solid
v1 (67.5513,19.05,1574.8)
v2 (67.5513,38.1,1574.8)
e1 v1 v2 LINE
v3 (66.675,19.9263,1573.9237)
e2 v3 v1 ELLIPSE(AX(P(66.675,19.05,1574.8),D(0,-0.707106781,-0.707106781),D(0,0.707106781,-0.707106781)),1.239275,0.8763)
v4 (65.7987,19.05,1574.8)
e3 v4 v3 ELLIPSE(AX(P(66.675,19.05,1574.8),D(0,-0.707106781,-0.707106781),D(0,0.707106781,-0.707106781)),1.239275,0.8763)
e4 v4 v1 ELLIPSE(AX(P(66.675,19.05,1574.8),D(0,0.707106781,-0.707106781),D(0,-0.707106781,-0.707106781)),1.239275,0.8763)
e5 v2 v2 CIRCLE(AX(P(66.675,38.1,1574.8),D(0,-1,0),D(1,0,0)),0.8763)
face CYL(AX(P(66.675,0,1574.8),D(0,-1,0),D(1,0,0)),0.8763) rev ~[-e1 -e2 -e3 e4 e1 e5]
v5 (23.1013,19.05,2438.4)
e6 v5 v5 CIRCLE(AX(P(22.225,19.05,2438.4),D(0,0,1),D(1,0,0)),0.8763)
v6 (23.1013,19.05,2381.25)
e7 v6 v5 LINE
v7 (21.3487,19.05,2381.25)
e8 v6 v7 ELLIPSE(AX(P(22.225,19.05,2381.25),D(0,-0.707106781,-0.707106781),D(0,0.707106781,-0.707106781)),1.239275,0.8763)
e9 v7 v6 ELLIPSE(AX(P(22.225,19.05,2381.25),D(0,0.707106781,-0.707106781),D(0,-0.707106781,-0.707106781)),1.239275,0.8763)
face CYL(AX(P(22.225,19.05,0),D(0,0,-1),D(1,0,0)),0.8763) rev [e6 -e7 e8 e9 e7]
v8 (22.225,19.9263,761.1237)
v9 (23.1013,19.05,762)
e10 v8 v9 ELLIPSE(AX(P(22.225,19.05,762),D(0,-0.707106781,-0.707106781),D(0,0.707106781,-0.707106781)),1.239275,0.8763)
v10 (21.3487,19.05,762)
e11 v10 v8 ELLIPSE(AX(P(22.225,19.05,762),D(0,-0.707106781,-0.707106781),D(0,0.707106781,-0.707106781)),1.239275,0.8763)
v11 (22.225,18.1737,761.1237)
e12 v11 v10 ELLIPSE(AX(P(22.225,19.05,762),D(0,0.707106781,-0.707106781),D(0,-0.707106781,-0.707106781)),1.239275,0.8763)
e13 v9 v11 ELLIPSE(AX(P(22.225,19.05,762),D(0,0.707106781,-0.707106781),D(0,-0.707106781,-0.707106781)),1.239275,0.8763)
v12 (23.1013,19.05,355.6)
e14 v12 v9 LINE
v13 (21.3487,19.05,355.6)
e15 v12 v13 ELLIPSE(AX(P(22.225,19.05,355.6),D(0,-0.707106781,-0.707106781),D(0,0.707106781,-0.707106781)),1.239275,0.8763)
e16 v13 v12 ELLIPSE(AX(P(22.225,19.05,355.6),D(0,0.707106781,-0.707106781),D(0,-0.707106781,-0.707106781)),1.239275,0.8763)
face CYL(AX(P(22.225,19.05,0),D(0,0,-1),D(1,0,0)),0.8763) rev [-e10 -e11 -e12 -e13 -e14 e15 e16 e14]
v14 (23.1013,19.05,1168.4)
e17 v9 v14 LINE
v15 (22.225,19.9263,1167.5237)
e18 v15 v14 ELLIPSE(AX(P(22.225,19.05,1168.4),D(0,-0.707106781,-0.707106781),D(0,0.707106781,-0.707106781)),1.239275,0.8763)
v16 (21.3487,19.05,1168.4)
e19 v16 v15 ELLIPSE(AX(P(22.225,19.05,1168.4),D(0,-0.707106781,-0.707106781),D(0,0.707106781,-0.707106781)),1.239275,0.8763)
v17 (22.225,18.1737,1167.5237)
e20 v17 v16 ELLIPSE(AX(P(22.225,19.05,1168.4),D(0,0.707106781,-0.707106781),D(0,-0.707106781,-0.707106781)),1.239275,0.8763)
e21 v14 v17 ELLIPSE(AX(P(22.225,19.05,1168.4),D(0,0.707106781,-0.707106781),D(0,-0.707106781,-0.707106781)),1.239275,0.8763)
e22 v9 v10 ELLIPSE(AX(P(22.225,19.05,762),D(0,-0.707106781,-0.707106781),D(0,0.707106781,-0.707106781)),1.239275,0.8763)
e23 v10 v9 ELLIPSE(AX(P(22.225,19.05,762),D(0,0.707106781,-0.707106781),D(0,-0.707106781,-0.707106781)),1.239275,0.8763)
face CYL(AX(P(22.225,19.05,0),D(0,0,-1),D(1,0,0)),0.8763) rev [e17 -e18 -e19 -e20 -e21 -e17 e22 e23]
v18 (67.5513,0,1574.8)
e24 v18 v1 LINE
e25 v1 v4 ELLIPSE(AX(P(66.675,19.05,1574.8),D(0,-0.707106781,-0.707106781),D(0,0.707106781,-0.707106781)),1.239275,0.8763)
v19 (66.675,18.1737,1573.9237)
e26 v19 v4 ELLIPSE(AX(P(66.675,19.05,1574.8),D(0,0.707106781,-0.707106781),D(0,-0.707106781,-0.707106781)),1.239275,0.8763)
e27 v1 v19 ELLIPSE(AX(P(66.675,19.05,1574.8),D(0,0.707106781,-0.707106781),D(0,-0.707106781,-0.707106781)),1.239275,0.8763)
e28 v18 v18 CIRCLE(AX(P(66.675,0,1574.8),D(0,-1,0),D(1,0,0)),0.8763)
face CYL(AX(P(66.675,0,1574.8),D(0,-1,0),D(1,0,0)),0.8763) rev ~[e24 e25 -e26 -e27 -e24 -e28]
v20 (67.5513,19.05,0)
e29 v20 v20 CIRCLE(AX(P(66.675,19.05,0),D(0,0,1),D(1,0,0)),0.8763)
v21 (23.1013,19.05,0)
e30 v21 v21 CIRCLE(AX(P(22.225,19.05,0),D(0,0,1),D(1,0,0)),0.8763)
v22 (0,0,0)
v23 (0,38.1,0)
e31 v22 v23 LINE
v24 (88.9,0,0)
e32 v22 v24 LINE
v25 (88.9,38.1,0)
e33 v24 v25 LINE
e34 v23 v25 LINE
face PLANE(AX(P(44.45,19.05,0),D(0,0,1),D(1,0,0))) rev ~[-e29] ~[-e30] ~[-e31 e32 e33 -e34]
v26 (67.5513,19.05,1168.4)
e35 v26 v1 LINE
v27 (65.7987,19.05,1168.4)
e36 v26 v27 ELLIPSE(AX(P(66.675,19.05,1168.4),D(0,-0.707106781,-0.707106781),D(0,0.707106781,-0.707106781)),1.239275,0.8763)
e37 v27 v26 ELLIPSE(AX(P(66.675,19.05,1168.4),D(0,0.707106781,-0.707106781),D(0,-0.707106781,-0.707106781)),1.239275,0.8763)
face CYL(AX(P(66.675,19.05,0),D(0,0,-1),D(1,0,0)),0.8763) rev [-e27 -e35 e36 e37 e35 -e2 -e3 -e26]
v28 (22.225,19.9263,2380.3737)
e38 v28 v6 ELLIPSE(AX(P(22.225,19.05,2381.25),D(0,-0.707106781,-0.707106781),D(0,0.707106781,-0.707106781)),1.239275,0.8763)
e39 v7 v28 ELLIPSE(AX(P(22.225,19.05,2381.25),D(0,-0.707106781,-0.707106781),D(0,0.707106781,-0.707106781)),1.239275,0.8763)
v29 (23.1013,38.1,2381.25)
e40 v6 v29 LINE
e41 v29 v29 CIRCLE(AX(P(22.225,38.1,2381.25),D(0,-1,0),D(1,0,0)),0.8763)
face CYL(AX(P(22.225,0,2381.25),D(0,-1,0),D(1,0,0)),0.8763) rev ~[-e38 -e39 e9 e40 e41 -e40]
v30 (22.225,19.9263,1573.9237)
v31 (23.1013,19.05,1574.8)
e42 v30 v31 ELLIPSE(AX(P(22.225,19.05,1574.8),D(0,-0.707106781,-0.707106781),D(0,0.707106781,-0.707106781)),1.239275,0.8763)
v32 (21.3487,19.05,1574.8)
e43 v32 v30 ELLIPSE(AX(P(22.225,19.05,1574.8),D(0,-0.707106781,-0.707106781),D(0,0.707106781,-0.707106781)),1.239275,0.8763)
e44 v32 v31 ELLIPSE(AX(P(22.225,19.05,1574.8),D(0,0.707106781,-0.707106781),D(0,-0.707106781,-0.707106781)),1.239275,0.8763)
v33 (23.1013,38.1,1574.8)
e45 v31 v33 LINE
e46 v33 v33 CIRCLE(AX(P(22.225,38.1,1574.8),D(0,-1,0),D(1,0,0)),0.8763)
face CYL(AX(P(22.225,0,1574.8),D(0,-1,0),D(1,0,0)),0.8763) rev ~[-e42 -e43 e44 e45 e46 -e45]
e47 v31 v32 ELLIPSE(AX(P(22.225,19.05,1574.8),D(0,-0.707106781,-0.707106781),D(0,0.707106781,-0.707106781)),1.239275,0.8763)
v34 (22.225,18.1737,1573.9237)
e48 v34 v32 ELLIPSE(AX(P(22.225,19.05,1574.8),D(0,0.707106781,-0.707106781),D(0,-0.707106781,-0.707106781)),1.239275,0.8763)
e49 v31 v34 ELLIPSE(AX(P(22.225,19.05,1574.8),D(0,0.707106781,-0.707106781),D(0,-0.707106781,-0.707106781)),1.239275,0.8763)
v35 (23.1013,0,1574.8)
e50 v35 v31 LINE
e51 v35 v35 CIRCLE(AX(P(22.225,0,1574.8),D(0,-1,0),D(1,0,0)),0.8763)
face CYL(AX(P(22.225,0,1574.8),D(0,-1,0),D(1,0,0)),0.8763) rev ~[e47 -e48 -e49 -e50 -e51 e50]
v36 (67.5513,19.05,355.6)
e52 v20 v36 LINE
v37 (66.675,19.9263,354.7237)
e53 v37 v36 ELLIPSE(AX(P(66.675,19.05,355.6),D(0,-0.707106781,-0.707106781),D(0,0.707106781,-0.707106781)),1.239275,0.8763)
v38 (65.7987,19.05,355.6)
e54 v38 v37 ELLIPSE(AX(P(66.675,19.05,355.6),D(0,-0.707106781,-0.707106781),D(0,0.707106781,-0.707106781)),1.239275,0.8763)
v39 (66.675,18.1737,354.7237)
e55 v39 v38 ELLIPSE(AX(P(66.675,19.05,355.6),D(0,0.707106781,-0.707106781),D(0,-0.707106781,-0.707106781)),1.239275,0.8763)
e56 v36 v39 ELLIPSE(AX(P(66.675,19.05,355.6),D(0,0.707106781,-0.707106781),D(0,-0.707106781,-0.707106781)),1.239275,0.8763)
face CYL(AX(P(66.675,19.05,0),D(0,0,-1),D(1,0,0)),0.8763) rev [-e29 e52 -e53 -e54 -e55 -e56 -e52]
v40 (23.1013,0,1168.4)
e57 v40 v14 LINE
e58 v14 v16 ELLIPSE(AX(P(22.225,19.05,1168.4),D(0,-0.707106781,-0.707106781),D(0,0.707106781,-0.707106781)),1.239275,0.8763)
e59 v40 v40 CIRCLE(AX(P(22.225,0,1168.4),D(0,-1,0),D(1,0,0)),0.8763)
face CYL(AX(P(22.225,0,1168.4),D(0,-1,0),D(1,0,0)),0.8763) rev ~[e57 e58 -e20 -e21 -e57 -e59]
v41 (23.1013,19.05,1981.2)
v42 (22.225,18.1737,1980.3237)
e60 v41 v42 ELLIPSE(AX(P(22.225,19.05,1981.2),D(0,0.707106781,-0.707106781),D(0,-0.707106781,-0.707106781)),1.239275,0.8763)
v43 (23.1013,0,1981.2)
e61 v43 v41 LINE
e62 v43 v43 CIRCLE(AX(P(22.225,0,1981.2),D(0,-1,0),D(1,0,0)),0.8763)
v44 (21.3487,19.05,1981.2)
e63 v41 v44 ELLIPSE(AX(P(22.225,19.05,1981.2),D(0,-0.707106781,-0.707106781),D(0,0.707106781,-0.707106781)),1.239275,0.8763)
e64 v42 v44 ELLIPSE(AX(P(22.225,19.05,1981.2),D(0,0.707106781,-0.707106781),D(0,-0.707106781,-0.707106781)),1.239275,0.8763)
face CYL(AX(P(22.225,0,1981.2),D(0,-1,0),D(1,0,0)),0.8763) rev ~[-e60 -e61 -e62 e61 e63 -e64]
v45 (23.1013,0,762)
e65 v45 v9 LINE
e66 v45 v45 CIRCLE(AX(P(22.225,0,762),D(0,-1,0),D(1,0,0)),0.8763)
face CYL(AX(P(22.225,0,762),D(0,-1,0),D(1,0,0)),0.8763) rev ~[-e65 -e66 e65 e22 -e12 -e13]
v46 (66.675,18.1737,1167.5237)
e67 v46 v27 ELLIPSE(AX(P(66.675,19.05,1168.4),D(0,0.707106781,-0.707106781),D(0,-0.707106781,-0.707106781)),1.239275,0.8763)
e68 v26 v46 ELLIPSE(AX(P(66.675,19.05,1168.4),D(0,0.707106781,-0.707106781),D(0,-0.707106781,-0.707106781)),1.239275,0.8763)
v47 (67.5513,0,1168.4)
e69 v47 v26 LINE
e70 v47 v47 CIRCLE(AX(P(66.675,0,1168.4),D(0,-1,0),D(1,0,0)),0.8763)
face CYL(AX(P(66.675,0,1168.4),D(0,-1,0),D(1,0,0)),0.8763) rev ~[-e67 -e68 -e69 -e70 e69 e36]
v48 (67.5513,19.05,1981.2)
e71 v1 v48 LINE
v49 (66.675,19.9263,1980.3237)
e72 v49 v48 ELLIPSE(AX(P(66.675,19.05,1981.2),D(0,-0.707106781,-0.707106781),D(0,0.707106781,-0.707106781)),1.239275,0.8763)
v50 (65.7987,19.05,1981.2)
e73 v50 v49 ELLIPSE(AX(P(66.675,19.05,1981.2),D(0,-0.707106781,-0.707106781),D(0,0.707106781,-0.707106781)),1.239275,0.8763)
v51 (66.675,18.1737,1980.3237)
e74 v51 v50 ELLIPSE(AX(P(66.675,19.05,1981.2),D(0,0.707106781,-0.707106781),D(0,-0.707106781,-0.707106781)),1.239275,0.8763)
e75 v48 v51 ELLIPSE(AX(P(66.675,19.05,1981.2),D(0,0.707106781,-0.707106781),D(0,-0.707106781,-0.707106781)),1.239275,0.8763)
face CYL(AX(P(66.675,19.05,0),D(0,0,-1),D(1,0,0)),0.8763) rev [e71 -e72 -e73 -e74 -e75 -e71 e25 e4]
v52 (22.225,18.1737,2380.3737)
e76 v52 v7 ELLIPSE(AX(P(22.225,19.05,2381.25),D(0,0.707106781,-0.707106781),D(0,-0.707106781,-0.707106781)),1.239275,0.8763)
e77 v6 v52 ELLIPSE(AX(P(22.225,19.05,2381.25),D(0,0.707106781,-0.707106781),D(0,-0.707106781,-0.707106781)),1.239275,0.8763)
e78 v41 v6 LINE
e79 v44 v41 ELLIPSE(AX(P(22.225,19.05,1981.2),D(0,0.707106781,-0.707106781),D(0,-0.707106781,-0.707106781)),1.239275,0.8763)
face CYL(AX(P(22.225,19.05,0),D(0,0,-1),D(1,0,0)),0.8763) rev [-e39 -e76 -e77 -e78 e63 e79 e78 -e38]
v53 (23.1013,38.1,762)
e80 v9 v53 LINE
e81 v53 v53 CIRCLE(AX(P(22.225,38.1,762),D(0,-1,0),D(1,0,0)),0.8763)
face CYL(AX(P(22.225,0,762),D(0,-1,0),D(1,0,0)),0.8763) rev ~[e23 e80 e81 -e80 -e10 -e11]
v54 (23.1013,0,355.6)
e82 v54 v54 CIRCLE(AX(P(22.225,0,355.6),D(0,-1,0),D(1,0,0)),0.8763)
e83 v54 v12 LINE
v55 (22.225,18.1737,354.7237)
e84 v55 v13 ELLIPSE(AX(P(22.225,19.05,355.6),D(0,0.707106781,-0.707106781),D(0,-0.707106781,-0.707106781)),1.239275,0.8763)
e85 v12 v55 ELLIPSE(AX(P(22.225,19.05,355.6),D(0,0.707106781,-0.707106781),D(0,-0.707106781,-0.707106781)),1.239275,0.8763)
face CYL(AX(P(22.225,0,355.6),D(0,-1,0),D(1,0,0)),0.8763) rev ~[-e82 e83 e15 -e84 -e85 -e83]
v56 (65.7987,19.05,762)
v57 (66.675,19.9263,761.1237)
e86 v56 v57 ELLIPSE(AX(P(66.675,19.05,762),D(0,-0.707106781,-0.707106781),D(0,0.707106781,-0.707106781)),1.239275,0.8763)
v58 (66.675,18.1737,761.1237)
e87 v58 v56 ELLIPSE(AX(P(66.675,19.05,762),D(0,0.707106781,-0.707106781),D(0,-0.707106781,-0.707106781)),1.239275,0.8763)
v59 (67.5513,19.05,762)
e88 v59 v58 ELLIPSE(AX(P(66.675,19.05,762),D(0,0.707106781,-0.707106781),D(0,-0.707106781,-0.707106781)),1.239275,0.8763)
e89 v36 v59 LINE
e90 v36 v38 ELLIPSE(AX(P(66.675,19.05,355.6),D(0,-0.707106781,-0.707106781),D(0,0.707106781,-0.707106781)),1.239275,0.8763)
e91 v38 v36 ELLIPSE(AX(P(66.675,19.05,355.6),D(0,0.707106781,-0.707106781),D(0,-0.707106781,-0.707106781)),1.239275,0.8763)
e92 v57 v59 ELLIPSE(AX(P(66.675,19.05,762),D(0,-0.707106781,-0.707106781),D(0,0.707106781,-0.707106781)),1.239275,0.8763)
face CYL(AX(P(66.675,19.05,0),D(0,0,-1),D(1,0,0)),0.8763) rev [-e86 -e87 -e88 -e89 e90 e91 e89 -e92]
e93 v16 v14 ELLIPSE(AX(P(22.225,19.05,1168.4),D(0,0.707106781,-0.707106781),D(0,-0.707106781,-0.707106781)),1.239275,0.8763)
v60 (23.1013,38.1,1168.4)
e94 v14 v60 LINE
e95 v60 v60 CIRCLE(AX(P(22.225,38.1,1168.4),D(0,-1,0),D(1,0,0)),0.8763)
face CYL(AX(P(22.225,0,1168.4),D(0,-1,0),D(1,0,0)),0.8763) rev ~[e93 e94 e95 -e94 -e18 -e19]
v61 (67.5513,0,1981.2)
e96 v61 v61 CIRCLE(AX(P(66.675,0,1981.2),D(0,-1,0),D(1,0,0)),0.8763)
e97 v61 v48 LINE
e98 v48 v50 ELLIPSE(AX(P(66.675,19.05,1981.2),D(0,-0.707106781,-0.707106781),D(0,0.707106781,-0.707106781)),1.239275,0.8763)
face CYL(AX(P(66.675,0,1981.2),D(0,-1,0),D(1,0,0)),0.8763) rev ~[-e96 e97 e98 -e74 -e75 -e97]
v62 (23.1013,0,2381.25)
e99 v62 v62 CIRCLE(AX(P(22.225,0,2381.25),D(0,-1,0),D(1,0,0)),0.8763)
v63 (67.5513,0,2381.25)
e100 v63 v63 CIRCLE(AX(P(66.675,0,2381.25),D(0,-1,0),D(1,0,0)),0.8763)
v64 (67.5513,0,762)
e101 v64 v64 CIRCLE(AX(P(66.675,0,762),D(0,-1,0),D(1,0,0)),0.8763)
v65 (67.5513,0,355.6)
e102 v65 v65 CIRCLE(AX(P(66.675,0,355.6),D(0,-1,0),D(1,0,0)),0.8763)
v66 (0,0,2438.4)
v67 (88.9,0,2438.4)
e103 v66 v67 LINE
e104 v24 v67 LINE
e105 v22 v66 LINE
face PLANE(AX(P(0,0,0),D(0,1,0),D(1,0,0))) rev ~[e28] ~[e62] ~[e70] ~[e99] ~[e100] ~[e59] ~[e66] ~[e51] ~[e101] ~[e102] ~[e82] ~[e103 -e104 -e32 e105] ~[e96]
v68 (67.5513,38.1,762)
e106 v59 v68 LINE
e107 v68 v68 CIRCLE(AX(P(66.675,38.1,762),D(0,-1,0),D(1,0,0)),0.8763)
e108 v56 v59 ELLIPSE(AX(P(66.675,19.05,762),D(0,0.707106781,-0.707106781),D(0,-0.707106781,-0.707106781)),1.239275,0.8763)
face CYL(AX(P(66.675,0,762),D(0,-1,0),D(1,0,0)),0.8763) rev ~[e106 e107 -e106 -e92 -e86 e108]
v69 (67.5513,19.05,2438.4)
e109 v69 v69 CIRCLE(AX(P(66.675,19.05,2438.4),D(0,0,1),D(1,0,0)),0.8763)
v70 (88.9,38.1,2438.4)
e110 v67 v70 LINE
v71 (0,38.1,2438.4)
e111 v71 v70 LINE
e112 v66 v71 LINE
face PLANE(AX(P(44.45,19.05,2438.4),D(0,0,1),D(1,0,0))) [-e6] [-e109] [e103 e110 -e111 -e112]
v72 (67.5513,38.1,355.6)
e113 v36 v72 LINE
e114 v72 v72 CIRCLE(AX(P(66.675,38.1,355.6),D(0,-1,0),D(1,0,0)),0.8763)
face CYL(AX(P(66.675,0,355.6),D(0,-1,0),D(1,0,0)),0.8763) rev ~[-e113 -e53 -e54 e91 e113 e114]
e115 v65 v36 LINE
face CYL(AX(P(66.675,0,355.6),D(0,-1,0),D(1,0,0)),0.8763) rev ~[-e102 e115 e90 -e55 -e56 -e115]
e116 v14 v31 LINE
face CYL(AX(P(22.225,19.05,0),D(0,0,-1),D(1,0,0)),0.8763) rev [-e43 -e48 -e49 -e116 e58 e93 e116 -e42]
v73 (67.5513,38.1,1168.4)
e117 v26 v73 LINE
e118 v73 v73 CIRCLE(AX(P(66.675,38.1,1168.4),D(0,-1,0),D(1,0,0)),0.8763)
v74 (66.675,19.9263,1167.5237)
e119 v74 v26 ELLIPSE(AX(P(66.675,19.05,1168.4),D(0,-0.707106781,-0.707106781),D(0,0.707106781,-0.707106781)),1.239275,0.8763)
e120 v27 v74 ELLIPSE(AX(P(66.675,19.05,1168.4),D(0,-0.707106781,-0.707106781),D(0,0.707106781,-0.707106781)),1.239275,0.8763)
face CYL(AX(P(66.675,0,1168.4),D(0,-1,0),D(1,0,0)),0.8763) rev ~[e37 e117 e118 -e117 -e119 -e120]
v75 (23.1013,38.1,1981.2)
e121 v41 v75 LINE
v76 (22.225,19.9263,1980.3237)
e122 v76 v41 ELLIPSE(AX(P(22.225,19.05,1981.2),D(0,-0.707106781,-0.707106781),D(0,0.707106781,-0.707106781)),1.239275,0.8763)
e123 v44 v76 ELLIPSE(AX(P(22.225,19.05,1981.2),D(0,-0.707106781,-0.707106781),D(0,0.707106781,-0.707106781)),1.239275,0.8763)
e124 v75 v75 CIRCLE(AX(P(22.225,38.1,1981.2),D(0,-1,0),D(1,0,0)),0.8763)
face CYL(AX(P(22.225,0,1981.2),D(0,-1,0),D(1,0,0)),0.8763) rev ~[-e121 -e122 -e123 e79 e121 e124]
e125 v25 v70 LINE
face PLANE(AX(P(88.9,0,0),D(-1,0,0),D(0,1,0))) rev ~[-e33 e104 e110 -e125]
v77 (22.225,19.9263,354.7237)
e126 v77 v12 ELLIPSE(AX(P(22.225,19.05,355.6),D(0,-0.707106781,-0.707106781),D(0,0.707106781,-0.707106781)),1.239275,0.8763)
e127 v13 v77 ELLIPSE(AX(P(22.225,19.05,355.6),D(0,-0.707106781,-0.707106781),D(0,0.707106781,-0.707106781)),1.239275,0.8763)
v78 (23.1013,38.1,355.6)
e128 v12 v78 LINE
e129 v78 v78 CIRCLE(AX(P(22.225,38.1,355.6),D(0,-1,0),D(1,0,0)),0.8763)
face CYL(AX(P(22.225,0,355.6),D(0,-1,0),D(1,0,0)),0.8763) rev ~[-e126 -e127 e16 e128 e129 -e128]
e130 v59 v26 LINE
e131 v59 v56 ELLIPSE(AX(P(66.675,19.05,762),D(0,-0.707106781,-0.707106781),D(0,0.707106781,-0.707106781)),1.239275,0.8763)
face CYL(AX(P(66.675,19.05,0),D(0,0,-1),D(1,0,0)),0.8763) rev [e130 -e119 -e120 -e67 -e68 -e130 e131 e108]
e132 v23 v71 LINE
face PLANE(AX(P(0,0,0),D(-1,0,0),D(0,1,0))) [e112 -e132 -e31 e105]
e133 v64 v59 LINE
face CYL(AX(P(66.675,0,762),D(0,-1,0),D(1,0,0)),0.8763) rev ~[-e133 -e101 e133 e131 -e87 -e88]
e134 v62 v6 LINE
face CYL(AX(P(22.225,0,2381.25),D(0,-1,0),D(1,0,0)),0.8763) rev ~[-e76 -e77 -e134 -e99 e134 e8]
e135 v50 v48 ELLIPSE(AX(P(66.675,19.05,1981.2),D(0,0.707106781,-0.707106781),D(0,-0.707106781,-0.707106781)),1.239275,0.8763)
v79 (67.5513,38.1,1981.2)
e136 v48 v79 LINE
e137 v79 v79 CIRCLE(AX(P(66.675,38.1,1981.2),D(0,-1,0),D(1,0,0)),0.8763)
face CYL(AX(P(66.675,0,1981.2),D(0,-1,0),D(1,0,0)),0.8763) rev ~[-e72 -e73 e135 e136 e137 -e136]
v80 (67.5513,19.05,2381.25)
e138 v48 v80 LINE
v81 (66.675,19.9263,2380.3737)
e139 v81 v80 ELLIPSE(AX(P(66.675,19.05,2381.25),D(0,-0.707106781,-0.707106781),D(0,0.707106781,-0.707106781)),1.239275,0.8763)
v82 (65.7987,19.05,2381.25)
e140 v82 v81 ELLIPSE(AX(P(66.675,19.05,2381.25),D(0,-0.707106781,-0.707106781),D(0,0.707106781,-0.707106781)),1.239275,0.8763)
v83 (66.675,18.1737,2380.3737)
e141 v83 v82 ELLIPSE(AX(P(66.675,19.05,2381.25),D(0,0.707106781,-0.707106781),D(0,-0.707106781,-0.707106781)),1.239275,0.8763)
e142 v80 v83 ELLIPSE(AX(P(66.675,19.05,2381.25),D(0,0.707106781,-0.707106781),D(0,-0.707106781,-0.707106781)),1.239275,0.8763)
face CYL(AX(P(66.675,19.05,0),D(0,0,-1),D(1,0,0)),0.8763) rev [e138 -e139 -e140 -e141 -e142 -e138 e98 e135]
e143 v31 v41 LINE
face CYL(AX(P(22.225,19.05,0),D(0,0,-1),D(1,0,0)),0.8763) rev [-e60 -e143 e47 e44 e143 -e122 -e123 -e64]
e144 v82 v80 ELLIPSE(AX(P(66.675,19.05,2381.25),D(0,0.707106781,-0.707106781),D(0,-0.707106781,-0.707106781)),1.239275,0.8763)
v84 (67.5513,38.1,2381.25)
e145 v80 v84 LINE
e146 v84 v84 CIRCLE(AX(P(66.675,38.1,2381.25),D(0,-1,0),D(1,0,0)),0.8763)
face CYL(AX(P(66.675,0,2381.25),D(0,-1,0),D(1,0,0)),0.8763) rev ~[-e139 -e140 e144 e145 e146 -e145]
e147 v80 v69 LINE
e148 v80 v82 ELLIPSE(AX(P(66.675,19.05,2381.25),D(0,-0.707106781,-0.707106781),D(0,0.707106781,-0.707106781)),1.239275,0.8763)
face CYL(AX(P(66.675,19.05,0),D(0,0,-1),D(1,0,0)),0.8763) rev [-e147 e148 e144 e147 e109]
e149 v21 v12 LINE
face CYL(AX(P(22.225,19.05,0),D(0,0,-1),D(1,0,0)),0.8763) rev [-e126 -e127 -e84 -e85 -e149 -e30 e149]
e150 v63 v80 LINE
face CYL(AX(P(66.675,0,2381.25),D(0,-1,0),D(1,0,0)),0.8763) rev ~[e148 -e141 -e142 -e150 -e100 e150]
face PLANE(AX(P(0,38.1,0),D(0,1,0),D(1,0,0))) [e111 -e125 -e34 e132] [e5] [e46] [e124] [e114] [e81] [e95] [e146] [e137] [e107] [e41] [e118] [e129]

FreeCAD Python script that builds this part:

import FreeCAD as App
import Part
import Sketcher
Q = App.Units.Quantity


def add_polygon(sketch, points):
    """Adds a closed chain of lines whose ends are joined by coincident constraints."""
    first, n = sketch.GeometryCount, len(points)
    for a, b in zip(points, points[1:] + points[:1]):
        sketch.addGeometry(Part.LineSegment(App.Vector(*a, 0), App.Vector(*b, 0)), False)
    for i in range(n):
        sketch.addConstraint(Sketcher.Constraint("Coincident", first + i, 2, first + (i + 1) % n, 1))

doc = App.newDocument("Part")
body = doc.addObject("PartDesign::Body", "Body")

sketch1 = body.newObject("Sketcher::SketchObject", "Sketch")
sketch1.AttachmentSupport = (doc.getObject("XY_Plane"), [""])
sketch1.MapMode = "FlatFace"
add_polygon(sketch1, [(0, 38.1), (0, 0), (88.9, 0), (88.9, 38.1)])
sketch1.addGeometry(Part.Circle(App.Vector(22.2, 19.1, 0), App.Vector(0, 0, 1), 0.9), False)
sketch1.addGeometry(Part.Circle(App.Vector(66.7, 19.1, 0), App.Vector(0, 0, 1), 0.9), False)
sketch1.addConstraint([
    Sketcher.Constraint("Vertical", 0),
    Sketcher.Constraint("Horizontal", 1),
    Sketcher.Constraint("Vertical", 2),
    Sketcher.Constraint("Horizontal", 3),
    Sketcher.Constraint("Coincident", 0, 2, -1, 1),
    Sketcher.Constraint("Equal", 4, 5),
    Sketcher.Constraint("Horizontal", 4, 3, 5, 3),
    Sketcher.Constraint("Diameter", 4, Q("0.069 in")),
    Sketcher.Constraint("DistanceX", 1, 1, 1, 2, Q("3.5 in")),
    Sketcher.Constraint("DistanceY", 0, 2, 0, 1, Q("1.5 in")),
    Sketcher.Constraint("DistanceY", -1, 1, 4, 3, Q("0.75 in")),
    Sketcher.Constraint("DistanceX", 4, 3, 5, 3, Q("1.75 in")),
    Sketcher.Constraint("DistanceX", -1, 1, 4, 3, Q("0.875 in")),
])
pad1 = body.newObject("PartDesign::Pad", "Pad")
pad1.Profile = sketch1
pad1.Length = Q("96 in")

sketch2 = body.newObject("Sketcher::SketchObject", "Sketch001")
sketch2.AttachmentSupport = (doc.getObject("XZ_Plane"), [""])
sketch2.MapMode = "FlatFace"
sketch2.addGeometry([
    Part.Circle(App.Vector(22.2, 355.6, 0), App.Vector(0, 0, 1), 0.9),
    Part.Circle(App.Vector(66.7, 355.6, 0), App.Vector(0, 0, 1), 0.9),
], False)
sketch2.addConstraint([
    Sketcher.Constraint("Equal", 0, 1),
    Sketcher.Constraint("Horizontal", 0, 3, 1, 3),
    Sketcher.Constraint("Diameter", 0, Q("0.069 in")),
    Sketcher.Constraint("DistanceY", -1, 1, 0, 3, Q("14 in")),
    Sketcher.Constraint("DistanceX", 0, 3, 1, 3, Q("1.75 in")),
    Sketcher.Constraint("DistanceX", -1, 1, 0, 3, Q("0.875 in")),
])
pocket1 = body.newObject("PartDesign::Pocket", "Pocket")
pocket1.Profile = sketch2
pocket1.Length = Q("1.5 in")
doc.recompute()

linearpattern = body.newObject("PartDesign::LinearPattern", "LinearPattern")
linearpattern.Originals = [pocket1]
linearpattern.Direction = (doc.getObject("Z_Axis"), [""])
linearpattern.Mode = "offset"
linearpattern.Offset = Q("16 in")
linearpattern.Occurrences = 5
body.Tip = linearpattern

sketch3 = body.newObject("Sketcher::SketchObject", "Sketch002")
sketch3.AttachmentSupport = (doc.getObject("XZ_Plane"), [""])
sketch3.MapMode = "FlatFace"
sketch3.addGeometry([
    Part.Circle(App.Vector(22.2, 2381.2, 0), App.Vector(0, 0, 1), 0.9),
    Part.Circle(App.Vector(66.7, 2381.2, 0), App.Vector(0, 0, 1), 0.9),
], False)
sketch3.addConstraint([
    Sketcher.Constraint("Equal", 0, 1),
    Sketcher.Constraint("Horizontal", 0, 3, 1, 3),
    Sketcher.Constraint("Diameter", 0, Q("0.069 in")),
    Sketcher.Constraint("DistanceY", -1, 1, 0, 3, Q("93.75 in")),
    Sketcher.Constraint("DistanceX", 0, 3, 1, 3, Q("1.75 in")),
    Sketcher.Constraint("DistanceX", -1, 1, 0, 3, Q("0.875 in")),
])
pocket2 = body.newObject("PartDesign::Pocket", "Pocket001")
pocket2.Profile = sketch3
pocket2.Length = Q("1.5 in")

doc.recompute()
